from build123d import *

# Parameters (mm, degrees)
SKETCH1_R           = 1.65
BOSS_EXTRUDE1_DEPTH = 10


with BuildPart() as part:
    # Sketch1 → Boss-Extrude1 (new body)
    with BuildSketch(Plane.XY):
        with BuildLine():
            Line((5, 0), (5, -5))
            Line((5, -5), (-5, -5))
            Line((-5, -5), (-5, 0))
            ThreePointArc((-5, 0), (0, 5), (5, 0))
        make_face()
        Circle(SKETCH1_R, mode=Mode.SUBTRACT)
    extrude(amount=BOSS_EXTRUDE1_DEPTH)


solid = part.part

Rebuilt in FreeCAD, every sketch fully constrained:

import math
import FreeCAD as App
import Part
import Sketcher
from FreeCAD import Vector

doc = App.newDocument("Part")
body = doc.addObject("PartDesign::Body", "Body")

sketch1 = body.newObject("Sketcher::SketchObject", "Sketch")
sketch1.AttachmentSupport = (doc.getObject("XY_Plane"), [""])
sketch1.MapMode = "FlatFace"
sketch1.addGeometry(Part.LineSegment(Vector(5, -5, 0), Vector(5, 0, 0)), False)
sketch1.addGeometry(Part.ArcOfCircle(Part.Circle(Vector(0, 0, 0), Vector(0, 0, 1), 5), math.radians(0), math.radians(180)), False)
sketch1.addGeometry(Part.LineSegment(Vector(-5, 0, 0), Vector(-5, -5, 0)), False)
sketch1.addGeometry(Part.LineSegment(Vector(-5, -5, 0), Vector(5, -5, 0)), False)
sketch1.addGeometry(Part.Circle(Vector(0, 0, 0), Vector(0, 0, 1), 1.6), False)
sketch1.addConstraint(Sketcher.Constraint("Tangent", 0, 2, 1, 1))
sketch1.addConstraint(Sketcher.Constraint("Tangent", 1, 2, 2, 1))
sketch1.addConstraint(Sketcher.Constraint("Coincident", 2, 2, 3, 1))
sketch1.addConstraint(Sketcher.Constraint("Coincident", 3, 2, 0, 1))
sketch1.addConstraint(Sketcher.Constraint("Vertical", 0))
sketch1.addConstraint(Sketcher.Constraint("Vertical", 2))
sketch1.addConstraint(Sketcher.Constraint("Horizontal", 3))
sketch1.addConstraint(Sketcher.Constraint("Coincident", 1, 3, -1, 1))
sketch1.addConstraint(Sketcher.Constraint("Coincident", 4, 3, -1, 1))
sketch1.addConstraint(Sketcher.Constraint("Radius", 1, 5.0))
sketch1.addConstraint(Sketcher.Constraint("Diameter", 4, 3.3))
sketch1.addConstraint(Sketcher.Constraint("DistanceY", 0, 1, 0, 2, 5.0))
pad1 = body.newObject("PartDesign::Pad", "Pad")
pad1.Profile = sketch1
pad1.Length = 10

doc.recompute()
